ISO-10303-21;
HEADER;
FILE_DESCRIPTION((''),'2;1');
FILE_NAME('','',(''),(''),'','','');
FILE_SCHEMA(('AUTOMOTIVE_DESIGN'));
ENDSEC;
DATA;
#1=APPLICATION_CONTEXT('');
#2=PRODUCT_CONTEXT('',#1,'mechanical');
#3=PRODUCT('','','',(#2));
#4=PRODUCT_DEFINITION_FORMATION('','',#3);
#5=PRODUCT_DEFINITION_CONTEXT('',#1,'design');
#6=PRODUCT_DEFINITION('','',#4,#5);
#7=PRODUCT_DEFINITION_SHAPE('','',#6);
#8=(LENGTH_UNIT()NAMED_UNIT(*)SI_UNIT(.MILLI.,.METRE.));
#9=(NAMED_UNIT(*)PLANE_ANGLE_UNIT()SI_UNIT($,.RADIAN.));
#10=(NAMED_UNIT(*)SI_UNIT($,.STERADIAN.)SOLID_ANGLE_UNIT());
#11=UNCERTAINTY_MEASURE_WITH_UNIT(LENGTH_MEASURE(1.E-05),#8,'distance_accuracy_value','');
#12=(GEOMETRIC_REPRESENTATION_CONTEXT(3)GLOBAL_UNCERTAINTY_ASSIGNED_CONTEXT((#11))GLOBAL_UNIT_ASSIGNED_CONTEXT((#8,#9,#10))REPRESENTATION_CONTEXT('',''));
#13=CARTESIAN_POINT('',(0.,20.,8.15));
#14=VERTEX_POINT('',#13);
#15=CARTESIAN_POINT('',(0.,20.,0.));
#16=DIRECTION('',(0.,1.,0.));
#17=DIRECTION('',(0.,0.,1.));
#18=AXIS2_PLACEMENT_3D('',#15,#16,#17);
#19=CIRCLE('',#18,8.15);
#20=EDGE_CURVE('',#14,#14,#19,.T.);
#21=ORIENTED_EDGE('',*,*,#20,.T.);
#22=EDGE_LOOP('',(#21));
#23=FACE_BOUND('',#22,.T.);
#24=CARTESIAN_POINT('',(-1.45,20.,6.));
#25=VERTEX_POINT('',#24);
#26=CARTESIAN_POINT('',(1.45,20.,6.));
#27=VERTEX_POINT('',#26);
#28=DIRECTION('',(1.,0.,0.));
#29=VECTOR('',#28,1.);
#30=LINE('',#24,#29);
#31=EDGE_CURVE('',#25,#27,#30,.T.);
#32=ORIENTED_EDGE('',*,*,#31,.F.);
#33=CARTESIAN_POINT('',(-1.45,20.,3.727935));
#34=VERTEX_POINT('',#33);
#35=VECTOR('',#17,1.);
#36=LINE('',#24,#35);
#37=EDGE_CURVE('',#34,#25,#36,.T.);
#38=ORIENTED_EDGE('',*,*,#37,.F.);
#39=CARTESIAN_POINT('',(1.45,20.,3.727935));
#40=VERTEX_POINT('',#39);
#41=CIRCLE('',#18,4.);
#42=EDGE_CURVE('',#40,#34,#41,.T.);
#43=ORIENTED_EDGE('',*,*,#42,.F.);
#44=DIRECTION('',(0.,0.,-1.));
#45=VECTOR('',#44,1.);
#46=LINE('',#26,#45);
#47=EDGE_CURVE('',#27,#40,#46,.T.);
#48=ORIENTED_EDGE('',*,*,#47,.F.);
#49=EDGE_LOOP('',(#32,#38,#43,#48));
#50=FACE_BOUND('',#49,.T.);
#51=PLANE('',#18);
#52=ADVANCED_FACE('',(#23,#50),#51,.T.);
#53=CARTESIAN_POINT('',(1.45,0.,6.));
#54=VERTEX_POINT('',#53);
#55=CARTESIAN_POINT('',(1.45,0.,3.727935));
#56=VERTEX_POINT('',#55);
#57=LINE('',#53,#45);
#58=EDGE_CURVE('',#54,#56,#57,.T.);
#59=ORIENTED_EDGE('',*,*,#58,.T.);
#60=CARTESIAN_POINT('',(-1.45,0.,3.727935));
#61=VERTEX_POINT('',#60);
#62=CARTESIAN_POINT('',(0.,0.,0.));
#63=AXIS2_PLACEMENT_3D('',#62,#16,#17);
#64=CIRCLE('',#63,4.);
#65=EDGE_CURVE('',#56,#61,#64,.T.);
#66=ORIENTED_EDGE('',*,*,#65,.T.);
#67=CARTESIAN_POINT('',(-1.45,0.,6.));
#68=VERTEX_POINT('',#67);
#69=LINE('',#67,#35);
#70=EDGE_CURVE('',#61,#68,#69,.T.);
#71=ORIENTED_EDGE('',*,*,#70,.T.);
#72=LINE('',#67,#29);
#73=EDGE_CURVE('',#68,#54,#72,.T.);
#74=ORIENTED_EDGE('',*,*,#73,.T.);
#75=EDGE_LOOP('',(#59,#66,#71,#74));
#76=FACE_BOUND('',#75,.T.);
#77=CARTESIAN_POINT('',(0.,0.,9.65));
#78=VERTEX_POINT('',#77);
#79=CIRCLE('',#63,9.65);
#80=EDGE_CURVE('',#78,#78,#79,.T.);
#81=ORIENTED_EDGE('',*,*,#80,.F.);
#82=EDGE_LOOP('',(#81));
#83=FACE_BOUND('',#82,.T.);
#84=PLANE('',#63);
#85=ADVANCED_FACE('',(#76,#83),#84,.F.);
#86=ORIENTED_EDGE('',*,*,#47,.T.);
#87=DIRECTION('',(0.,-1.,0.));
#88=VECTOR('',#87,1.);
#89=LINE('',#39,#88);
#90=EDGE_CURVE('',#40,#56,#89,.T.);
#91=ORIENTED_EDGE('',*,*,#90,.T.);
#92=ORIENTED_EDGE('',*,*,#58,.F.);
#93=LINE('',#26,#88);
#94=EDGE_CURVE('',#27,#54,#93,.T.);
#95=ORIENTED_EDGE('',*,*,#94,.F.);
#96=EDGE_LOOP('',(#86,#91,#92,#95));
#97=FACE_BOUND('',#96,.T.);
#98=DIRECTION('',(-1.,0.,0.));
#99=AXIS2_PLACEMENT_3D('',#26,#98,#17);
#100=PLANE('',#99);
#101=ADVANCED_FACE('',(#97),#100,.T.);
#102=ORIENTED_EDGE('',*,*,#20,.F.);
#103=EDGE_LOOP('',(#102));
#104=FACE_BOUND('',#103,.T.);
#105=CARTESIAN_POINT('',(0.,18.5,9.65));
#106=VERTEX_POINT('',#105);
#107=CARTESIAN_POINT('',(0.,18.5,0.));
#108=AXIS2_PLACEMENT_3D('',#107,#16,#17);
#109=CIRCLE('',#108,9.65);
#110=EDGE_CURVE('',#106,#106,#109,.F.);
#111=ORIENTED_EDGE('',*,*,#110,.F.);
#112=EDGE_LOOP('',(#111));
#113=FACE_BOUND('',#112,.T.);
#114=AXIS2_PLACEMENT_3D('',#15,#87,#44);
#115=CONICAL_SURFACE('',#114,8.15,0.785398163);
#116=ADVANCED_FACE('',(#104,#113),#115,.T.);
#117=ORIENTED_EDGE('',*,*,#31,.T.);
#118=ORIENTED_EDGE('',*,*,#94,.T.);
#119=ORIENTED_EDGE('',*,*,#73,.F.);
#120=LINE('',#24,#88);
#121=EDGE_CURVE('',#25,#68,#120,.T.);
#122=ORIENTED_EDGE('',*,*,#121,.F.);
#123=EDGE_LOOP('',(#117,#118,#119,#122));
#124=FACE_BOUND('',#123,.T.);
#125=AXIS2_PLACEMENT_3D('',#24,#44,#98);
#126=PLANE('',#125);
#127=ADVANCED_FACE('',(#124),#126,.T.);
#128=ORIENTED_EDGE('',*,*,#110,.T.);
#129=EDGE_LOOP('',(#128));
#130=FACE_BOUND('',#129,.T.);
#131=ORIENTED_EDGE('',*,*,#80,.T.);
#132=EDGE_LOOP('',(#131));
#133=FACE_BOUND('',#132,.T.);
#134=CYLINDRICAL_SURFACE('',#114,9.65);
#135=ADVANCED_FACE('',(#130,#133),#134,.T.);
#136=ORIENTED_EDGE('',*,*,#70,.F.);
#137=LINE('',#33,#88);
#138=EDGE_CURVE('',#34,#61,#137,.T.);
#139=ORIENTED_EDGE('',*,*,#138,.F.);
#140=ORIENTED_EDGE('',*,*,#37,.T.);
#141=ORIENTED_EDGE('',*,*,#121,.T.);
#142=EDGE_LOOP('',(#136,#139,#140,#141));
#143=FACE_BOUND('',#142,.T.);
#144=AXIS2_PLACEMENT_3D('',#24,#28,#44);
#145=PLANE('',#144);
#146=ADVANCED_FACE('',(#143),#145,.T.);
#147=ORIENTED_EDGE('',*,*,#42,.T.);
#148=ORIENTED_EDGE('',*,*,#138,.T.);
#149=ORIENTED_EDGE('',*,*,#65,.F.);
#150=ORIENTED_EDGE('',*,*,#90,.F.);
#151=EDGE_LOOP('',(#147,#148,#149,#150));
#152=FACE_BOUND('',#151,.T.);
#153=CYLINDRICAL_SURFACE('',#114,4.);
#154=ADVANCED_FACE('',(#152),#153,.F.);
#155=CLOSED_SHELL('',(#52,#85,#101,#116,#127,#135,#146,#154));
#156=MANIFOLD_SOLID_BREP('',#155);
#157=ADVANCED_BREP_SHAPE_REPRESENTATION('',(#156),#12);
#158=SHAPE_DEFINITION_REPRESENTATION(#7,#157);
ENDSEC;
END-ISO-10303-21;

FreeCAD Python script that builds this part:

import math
import FreeCAD as App
import Part
import Sketcher
Q = App.Units.Quantity


def edges_at(feature, points):
    """Names of the edges that pass closest to the given points."""
    edges = feature.Shape.Edges
    near = lambda p: min(range(len(edges)), key=lambda i: edges[i].distToShape(Part.Vertex(*p))[0])
    return sorted({f"Edge{near(p) + 1}" for p in points})

doc = App.newDocument("Part")
body = doc.addObject("PartDesign::Body", "Body")

# Sketch on XZ plane
sketch1 = body.newObject("Sketcher::SketchObject", "Sketch")
sketch1.AttachmentSupport = (doc.getObject("XZ_Plane"), [""])
sketch1.MapMode = "FlatFace"
sketch1.addGeometry(Part.Circle(App.Vector(0, 0, 0), App.Vector(0, 0, 1), 9.7), False)
sketch1.addGeometry(Part.LineSegment(App.Vector(1.4, 6, 0), App.Vector(-1.4, 6, 0)), False)
sketch1.addGeometry(Part.LineSegment(App.Vector(-1.4, 6, 0), App.Vector(-1.4, 3.7, 0)), False)
sketch1.addGeometry(Part.ArcOfCircle(Part.Circle(App.Vector(0, 0, 0), App.Vector(0, 0, 1), 4), math.radians(111), math.radians(429)), False)
sketch1.addGeometry(Part.LineSegment(App.Vector(1.4, 3.7, 0), App.Vector(1.4, 6, 0)), False)
sketch1.addConstraint(Sketcher.Constraint("Coincident", 1, 2, 2, 1))
sketch1.addConstraint(Sketcher.Constraint("Coincident", 2, 2, 3, 1))
sketch1.addConstraint(Sketcher.Constraint("Coincident", 3, 2, 4, 1))
sketch1.addConstraint(Sketcher.Constraint("Coincident", 4, 2, 1, 1))
sketch1.addConstraint(Sketcher.Constraint("Horizontal", 1))
sketch1.addConstraint(Sketcher.Constraint("Vertical", 2))
sketch1.addConstraint(Sketcher.Constraint("Vertical", 4))
sketch1.addConstraint(Sketcher.Constraint("Coincident", 0, 3, -1, 1))
sketch1.addConstraint(Sketcher.Constraint("Coincident", 3, 3, -1, 1))
sketch1.addConstraint(Sketcher.Constraint("Horizontal", 2, 2, 3, 2))
sketch1.addConstraint(Sketcher.Constraint("Radius", 3, Q("4 mm")))
sketch1.addConstraint(Sketcher.Constraint("Diameter", 0, Q("19.3 mm")))
sketch1.addConstraint(Sketcher.Constraint("DistanceX", 1, 2, 1, 1, Q("2.9 mm")))
sketch1.addConstraint(Sketcher.Constraint("DistanceY", -1, 1, 1, 2, Q("6 mm")))
pad1 = body.newObject("PartDesign::Pad", "Pad")
pad1.Profile = sketch1
pad1.Length = 20
pad1.Reversed = True
doc.recompute()

chamfer = body.newObject("PartDesign::Chamfer", "Chamfer")
chamfer.Base = (pad1, edges_at(pad1, [(0, 20, -9.65)]))
chamfer.Size = 1.5

doc.recompute()
